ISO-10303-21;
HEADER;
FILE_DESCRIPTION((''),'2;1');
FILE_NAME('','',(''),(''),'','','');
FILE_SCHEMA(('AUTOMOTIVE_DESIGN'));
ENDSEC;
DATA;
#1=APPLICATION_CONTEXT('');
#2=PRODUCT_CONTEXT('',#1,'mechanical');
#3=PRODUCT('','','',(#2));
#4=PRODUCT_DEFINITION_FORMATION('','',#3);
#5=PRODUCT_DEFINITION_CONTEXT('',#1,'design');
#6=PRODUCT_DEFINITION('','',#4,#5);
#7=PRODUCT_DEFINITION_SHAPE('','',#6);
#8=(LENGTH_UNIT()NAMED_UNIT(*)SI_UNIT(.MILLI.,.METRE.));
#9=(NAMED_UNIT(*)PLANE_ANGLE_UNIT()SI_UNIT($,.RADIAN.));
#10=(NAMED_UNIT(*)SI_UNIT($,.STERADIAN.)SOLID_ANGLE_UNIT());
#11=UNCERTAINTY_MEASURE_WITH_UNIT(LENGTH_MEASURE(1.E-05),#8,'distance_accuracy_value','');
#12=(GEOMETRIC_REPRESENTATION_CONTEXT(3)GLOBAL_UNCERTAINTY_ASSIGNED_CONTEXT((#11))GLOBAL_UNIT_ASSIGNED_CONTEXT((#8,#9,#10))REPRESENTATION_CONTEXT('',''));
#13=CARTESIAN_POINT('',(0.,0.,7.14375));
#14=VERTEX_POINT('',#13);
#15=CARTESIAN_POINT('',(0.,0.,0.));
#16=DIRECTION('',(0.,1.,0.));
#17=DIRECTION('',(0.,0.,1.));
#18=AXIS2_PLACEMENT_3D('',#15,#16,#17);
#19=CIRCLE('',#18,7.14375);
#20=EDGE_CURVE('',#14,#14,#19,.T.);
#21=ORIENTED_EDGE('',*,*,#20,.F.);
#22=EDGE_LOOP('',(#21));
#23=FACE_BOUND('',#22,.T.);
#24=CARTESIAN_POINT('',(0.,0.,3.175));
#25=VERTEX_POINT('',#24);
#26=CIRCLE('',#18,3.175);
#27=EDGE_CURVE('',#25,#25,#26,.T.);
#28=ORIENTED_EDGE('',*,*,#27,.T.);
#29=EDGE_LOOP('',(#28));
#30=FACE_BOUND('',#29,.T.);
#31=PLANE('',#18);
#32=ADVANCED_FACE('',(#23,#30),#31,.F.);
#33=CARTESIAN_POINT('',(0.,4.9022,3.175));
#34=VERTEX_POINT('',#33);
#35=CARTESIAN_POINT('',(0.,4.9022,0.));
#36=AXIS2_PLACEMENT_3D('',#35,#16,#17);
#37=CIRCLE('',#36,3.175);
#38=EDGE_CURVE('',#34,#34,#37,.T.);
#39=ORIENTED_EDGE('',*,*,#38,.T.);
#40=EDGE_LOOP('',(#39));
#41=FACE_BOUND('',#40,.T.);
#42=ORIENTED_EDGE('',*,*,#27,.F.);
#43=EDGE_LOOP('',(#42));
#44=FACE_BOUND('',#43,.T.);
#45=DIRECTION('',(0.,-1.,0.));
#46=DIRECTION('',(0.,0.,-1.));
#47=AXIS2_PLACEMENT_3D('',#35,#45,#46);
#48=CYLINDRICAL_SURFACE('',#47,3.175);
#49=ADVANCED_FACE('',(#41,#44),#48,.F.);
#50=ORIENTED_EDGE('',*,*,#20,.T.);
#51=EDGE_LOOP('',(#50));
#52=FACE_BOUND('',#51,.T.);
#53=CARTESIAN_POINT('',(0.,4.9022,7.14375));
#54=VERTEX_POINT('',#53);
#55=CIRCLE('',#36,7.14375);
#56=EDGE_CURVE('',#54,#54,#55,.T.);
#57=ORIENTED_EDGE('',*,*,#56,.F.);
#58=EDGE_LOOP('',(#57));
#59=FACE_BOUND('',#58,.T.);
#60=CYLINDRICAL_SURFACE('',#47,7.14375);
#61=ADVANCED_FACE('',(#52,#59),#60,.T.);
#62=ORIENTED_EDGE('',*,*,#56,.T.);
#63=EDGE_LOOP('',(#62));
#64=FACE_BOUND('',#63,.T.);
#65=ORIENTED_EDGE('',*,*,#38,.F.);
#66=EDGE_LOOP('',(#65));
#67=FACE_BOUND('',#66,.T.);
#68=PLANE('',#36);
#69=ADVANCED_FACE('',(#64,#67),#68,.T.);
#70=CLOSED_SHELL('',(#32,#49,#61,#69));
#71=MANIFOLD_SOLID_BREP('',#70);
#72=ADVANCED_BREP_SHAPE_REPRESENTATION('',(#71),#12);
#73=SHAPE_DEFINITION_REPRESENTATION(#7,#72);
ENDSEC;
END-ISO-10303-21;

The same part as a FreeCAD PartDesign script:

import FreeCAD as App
import Part
import Sketcher

V = App.Vector
Q = App.Units.Quantity

doc = App.newDocument("Part")
body = doc.addObject("PartDesign::Body", "Body")

# Sketch on XZ plane
sketch1 = body.newObject("Sketcher::SketchObject", "Sketch")
sketch1.AttachmentSupport = (doc.getObject("XZ_Plane"), [""])
sketch1.MapMode = "FlatFace"
sketch1.addGeometry(Part.Circle(V(0, 0, 0), V(0, 0, 1), 7.1), False)
sketch1.addGeometry(Part.Circle(V(0, 0, 0), V(0, 0, 1), 3.2), False)
sketch1.addConstraint(Sketcher.Constraint("Coincident", 0, 3, -1, 1))
sketch1.addConstraint(Sketcher.Constraint("Coincident", 1, 3, -1, 1))
sketch1.addConstraint(Sketcher.Constraint("Diameter", 1, Q("0.25 in")))
sketch1.addConstraint(Sketcher.Constraint("Diameter", 0, Q("0.5625 in")))
pad1 = body.newObject("PartDesign::Pad", "Pad")
pad1.Profile = sketch1
pad1.Length = Q("0.193 in")
pad1.Reversed = True

doc.recompute()
